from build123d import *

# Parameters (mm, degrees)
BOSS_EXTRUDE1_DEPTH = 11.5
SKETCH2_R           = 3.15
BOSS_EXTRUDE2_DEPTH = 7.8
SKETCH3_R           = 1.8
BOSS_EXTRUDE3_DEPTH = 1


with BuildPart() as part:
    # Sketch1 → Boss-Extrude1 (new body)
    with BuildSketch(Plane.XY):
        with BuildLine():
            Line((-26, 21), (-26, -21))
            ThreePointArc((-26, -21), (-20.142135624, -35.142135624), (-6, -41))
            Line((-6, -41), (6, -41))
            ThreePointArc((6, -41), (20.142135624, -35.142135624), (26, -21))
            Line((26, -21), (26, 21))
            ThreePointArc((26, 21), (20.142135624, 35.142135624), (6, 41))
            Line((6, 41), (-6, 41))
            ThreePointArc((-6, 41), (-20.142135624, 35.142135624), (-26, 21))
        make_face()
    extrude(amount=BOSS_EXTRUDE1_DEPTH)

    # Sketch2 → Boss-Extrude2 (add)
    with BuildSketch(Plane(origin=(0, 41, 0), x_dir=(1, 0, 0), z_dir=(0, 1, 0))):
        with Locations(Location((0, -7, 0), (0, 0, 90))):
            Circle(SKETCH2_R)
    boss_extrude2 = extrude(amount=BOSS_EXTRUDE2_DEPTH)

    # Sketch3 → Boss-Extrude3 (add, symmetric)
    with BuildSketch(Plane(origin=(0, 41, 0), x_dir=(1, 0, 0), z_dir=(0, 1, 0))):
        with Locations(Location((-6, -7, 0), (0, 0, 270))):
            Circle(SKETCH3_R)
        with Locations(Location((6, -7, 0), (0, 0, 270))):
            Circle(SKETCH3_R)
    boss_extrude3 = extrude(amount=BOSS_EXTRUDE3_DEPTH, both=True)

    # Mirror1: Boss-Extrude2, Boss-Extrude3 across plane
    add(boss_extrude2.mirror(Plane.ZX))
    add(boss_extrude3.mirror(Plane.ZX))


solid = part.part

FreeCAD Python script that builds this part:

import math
import FreeCAD as App
import Part
import Sketcher
from FreeCAD import Vector

doc = App.newDocument("Part")
body = doc.addObject("PartDesign::Body", "Body")

# Sketch on XY plane
sketch1 = body.newObject("Sketcher::SketchObject", "Sketch")
sketch1.AttachmentSupport = (doc.getObject("XY_Plane"), [""])
sketch1.MapMode = "FlatFace"
sketch1.addGeometry([
    Part.LineSegment(Vector(-26, 21, 0), Vector(-26, -21, 0)),  # 0
    Part.ArcOfCircle(Part.Circle(Vector(-6, -21, 0), Vector(0, 0, 1), 20), math.radians(180), math.radians(270)),  # 1
    Part.LineSegment(Vector(-6, -41, 0), Vector(6, -41, 0)),  # 2
    Part.ArcOfCircle(Part.Circle(Vector(6, -21, 0), Vector(0, 0, 1), 20), math.radians(-90), math.radians(0)),  # 3
    Part.LineSegment(Vector(26, -21, 0), Vector(26, 21, 0)),  # 4
    Part.ArcOfCircle(Part.Circle(Vector(6, 21, 0), Vector(0, 0, 1), 20), math.radians(0), math.radians(90)),  # 5
    Part.LineSegment(Vector(6, 41, 0), Vector(-6, 41, 0)),  # 6
    Part.ArcOfCircle(Part.Circle(Vector(-6, 21, 0), Vector(0, 0, 1), 20), math.radians(90), math.radians(180)),  # 7
], False)
sketch1.addConstraint([
    Sketcher.Constraint("Tangent", 0, 2, 1, 1),
    Sketcher.Constraint("Tangent", 1, 2, 2, 1),
    Sketcher.Constraint("Tangent", 2, 2, 3, 1),
    Sketcher.Constraint("Tangent", 3, 2, 4, 1),
    Sketcher.Constraint("Tangent", 4, 2, 5, 1),
    Sketcher.Constraint("Tangent", 5, 2, 6, 1),
    Sketcher.Constraint("Tangent", 6, 2, 7, 1),
    Sketcher.Constraint("Tangent", 7, 2, 0, 1),
    Sketcher.Constraint("Vertical", 0),
    Sketcher.Constraint("Horizontal", 2),
    Sketcher.Constraint("Vertical", 4),
    Sketcher.Constraint("Horizontal", 6),
    Sketcher.Constraint("Equal", 1, 3),
    Sketcher.Constraint("Equal", 3, 5),
    Sketcher.Constraint("Equal", 5, 7),
    Sketcher.Constraint("Symmetric", 1, 3, 5, 3, -1, 1),
    Sketcher.Constraint("Radius", 1, 20.0),
    Sketcher.Constraint("DistanceX", 2, 1, 2, 2, 12.0),
    Sketcher.Constraint("DistanceY", 0, 2, 0, 1, 42.0),
])
pad1 = body.newObject("PartDesign::Pad", "Pad")
pad1.Profile = sketch1
pad1.Length = 11.5

# Sketch on XZ plane
sketch2 = body.newObject("Sketcher::SketchObject", "Sketch001")
sketch2.AttachmentSupport = (doc.getObject("XZ_Plane"), [""])
sketch2.MapMode = "FlatFace"
sketch2.AttachmentOffset = App.Placement(Vector(0, 0, -41), App.Rotation())
sketch2.addGeometry(Part.Circle(Vector(0, 7, 0), Vector(0, 0, 1), 3.1), False)
sketch2.addConstraint([
    Sketcher.Constraint("PointOnObject", 0, 3, -2),
    Sketcher.Constraint("Diameter", 0, 6.3),
    Sketcher.Constraint("DistanceY", -1, 1, 0, 3, 7.0),
])
pad2 = body.newObject("PartDesign::Pad", "Pad001")
pad2.Profile = sketch2
pad2.Length = 7.8
pad2.Reversed = True

# Sketch on XZ plane
sketch3 = body.newObject("Sketcher::SketchObject", "Sketch002")
sketch3.AttachmentSupport = (doc.getObject("XZ_Plane"), [""])
sketch3.MapMode = "FlatFace"
sketch3.AttachmentOffset = App.Placement(Vector(0, 0, -41), App.Rotation())
sketch3.addGeometry([
    Part.Circle(Vector(-6, 7, 0), Vector(0, 0, 1), 1.8),
    Part.Circle(Vector(6, 7, 0), Vector(0, 0, 1), 1.8),
], False)
sketch3.addConstraint([
    Sketcher.Constraint("Equal", 0, 1),
    Sketcher.Constraint("Symmetric", 0, 3, 1, 3, -2),
    Sketcher.Constraint("Diameter", 0, 3.6),
    Sketcher.Constraint("DistanceX", 0, 3, -1, 1, 6.0),
    Sketcher.Constraint("DistanceY", -1, 1, 0, 3, 7.0),
])
pad3 = body.newObject("PartDesign::Pad", "Pad002")
pad3.Profile = sketch3
pad3.Length = 2
pad3.Midplane = True
doc.recompute()

mirrored = body.newObject("PartDesign::Mirrored", "Mirrored")
mirrored.Originals = [pad2, pad3]
mirrored.MirrorPlane = (doc.getObject("XZ_Plane"), [""])
body.Tip = mirrored

doc.recompute()
